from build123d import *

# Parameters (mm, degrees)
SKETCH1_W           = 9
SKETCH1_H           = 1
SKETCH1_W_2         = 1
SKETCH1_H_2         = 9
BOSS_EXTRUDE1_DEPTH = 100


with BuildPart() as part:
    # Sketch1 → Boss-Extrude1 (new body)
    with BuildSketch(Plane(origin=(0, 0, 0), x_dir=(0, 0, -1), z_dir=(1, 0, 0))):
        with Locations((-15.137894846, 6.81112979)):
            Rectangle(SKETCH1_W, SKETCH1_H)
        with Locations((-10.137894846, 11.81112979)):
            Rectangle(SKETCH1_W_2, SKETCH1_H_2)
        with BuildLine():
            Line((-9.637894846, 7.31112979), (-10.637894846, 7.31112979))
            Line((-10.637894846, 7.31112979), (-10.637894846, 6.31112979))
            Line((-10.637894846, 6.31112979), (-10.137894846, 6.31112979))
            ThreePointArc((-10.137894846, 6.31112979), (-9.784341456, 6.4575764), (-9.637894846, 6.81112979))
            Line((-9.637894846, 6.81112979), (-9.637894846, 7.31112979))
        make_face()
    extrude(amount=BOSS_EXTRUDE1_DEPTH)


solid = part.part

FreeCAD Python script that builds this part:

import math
import FreeCAD as App
import Part
import Sketcher

V = App.Vector
Q = App.Units.Quantity

doc = App.newDocument("Part")
body = doc.addObject("PartDesign::Body", "Body")

sketch1 = body.newObject("Sketcher::SketchObject", "Sketch")
sketch1.AttachmentSupport = (doc.getObject("YZ_Plane"), [""])
sketch1.MapMode = "FlatFace"
sketch1.addGeometry(Part.LineSegment(V(7.3, 19.6, 0), V(6.3, 19.6, 0)), False)
sketch1.addGeometry(Part.LineSegment(V(6.3, 19.6, 0), V(6.3, 10.1, 0)), False)
sketch1.addGeometry(Part.ArcOfCircle(Part.Circle(V(6.8, 10.1, 0), V(0, 0, 1), 0.5), math.radians(-180), math.radians(-90)), False)
sketch1.addGeometry(Part.LineSegment(V(6.8, 9.6, 0), V(16.3, 9.6, 0)), False)
sketch1.addGeometry(Part.LineSegment(V(16.3, 9.6, 0), V(16.3, 10.6, 0)), False)
sketch1.addGeometry(Part.LineSegment(V(16.3, 10.6, 0), V(7.3, 10.6, 0)), False)
sketch1.addGeometry(Part.LineSegment(V(7.3, 10.6, 0), V(7.3, 19.6, 0)), False)
sketch1.addConstraint(Sketcher.Constraint("Coincident", 0, 2, 1, 1))
sketch1.addConstraint(Sketcher.Constraint("Tangent", 1, 2, 2, 1))
sketch1.addConstraint(Sketcher.Constraint("Tangent", 2, 2, 3, 1))
sketch1.addConstraint(Sketcher.Constraint("Coincident", 3, 2, 4, 1))
sketch1.addConstraint(Sketcher.Constraint("Coincident", 4, 2, 5, 1))
sketch1.addConstraint(Sketcher.Constraint("Coincident", 5, 2, 6, 1))
sketch1.addConstraint(Sketcher.Constraint("Coincident", 6, 2, 0, 1))
sketch1.addConstraint(Sketcher.Constraint("Horizontal", 0))
sketch1.addConstraint(Sketcher.Constraint("Vertical", 1))
sketch1.addConstraint(Sketcher.Constraint("Horizontal", 3))
sketch1.addConstraint(Sketcher.Constraint("Vertical", 4))
sketch1.addConstraint(Sketcher.Constraint("Horizontal", 5))
sketch1.addConstraint(Sketcher.Constraint("Vertical", 6))
sketch1.addConstraint(Sketcher.Constraint("Equal", 3, 1))
sketch1.addConstraint(Sketcher.Constraint("Equal", 0, 4))
sketch1.addConstraint(Sketcher.Constraint("Radius", 2, Q("0.5 mm")))
sketch1.addConstraint(Sketcher.Constraint("DistanceX", 0, 2, 0, 1, Q("1 mm")))
sketch1.addConstraint(Sketcher.Constraint("DistanceX", 5, 2, 5, 1, Q("9 mm")))
sketch1.addConstraint(Sketcher.Constraint("DistanceX", -1, 1, 2, 3, Q("6.81113 mm")))
sketch1.addConstraint(Sketcher.Constraint("DistanceY", -1, 1, 2, 3, Q("10.137895 mm")))
pad1 = body.newObject("PartDesign::Pad", "Pad")
pad1.Profile = sketch1
pad1.Length = 100

doc.recompute()
